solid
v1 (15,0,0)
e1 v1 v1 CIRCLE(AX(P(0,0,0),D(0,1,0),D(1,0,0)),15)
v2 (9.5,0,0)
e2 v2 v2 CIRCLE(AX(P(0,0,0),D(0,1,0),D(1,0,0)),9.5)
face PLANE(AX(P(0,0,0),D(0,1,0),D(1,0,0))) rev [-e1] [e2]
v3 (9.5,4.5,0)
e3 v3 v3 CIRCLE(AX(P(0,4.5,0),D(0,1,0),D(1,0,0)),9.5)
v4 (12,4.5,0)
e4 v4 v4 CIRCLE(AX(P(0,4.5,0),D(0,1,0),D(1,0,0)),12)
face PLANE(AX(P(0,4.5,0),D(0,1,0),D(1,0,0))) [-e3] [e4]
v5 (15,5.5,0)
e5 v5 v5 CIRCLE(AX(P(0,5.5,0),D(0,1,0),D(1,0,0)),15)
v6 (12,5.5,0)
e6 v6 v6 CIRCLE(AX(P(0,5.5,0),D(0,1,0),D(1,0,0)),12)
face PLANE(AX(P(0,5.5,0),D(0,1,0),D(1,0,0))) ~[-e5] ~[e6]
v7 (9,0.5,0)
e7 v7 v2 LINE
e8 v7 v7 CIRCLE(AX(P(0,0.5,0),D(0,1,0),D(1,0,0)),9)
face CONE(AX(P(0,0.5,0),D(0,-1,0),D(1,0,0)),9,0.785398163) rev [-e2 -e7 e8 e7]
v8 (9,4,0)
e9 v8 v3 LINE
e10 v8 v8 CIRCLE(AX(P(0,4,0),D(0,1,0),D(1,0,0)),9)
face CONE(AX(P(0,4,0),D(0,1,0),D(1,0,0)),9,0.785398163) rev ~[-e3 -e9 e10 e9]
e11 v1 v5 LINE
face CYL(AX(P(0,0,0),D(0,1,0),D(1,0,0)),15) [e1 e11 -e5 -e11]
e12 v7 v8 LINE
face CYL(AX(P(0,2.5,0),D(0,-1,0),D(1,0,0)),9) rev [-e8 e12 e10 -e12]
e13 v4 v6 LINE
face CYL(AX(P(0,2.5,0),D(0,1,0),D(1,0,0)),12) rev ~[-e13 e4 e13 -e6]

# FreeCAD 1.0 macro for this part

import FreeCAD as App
import Part
import Sketcher
from FreeCAD import Vector
Q = App.Units.Quantity


def edges_at(feature, points):
    """Names of the edges that pass closest to the given points."""
    edges = feature.Shape.Edges
    near = lambda p: min(range(len(edges)), key=lambda i: edges[i].distToShape(Part.Vertex(*p))[0])
    return sorted({f"Edge{near(p) + 1}" for p in points})

doc = App.newDocument("Part")
body = doc.addObject("PartDesign::Body", "Body")

sketch1 = body.newObject("Sketcher::SketchObject", "Sketch")
sketch1.AttachmentSupport = (doc.getObject("XY_Plane"), [""])
sketch1.MapMode = "FlatFace"
sketch1.addGeometry(Part.LineSegment(Vector(9, 0, 0), Vector(15, 0, 0)), False)
sketch1.addGeometry(Part.LineSegment(Vector(15, 0, 0), Vector(15, 5.5, 0)), False)
sketch1.addGeometry(Part.LineSegment(Vector(15, 5.5, 0), Vector(12, 5.5, 0)), False)
sketch1.addGeometry(Part.LineSegment(Vector(12, 5.5, 0), Vector(12, 4.5, 0)), False)
sketch1.addGeometry(Part.LineSegment(Vector(12, 4.5, 0), Vector(9, 4.5, 0)), False)
sketch1.addGeometry(Part.LineSegment(Vector(9, 4.5, 0), Vector(9, 0, 0)), False)
sketch1.addConstraint(Sketcher.Constraint("Coincident", 0, 2, 1, 1))
sketch1.addConstraint(Sketcher.Constraint("Coincident", 1, 2, 2, 1))
sketch1.addConstraint(Sketcher.Constraint("Coincident", 2, 2, 3, 1))
sketch1.addConstraint(Sketcher.Constraint("Coincident", 3, 2, 4, 1))
sketch1.addConstraint(Sketcher.Constraint("Coincident", 4, 2, 5, 1))
sketch1.addConstraint(Sketcher.Constraint("Coincident", 5, 2, 0, 1))
sketch1.addConstraint(Sketcher.Constraint("Horizontal", 0))
sketch1.addConstraint(Sketcher.Constraint("Vertical", 1))
sketch1.addConstraint(Sketcher.Constraint("Horizontal", 2))
sketch1.addConstraint(Sketcher.Constraint("Vertical", 3))
sketch1.addConstraint(Sketcher.Constraint("Horizontal", 4))
sketch1.addConstraint(Sketcher.Constraint("Vertical", 5))
sketch1.addConstraint(Sketcher.Constraint("PointOnObject", 0, 2, -1))
sketch1.addConstraint(Sketcher.Constraint("Equal", 2, 4))
sketch1.addConstraint(Sketcher.Constraint("DistanceX", 0, 1, 0, 2, Q("6 mm")))
sketch1.addConstraint(Sketcher.Constraint("DistanceY", 3, 2, 3, 1, Q("1 mm")))
sketch1.addConstraint(Sketcher.Constraint("DistanceX", -1, 1, 4, 2, Q("9 mm")))
sketch1.addConstraint(Sketcher.Constraint("DistanceY", 1, 1, 1, 2, Q("5.5 mm")))
revolution = body.newObject("PartDesign::Revolution", "Revolution")
revolution.Profile = sketch1
revolution.ReferenceAxis = (sketch1, ["V_Axis"])
revolution.Angle = 360
doc.recompute()

chamfer = body.newObject("PartDesign::Chamfer", "Chamfer")
chamfer.Base = (revolution, edges_at(revolution, [(-9, 0, 0), (-9, 4.5, 0)]))
chamfer.Size = 0.5

doc.recompute()
